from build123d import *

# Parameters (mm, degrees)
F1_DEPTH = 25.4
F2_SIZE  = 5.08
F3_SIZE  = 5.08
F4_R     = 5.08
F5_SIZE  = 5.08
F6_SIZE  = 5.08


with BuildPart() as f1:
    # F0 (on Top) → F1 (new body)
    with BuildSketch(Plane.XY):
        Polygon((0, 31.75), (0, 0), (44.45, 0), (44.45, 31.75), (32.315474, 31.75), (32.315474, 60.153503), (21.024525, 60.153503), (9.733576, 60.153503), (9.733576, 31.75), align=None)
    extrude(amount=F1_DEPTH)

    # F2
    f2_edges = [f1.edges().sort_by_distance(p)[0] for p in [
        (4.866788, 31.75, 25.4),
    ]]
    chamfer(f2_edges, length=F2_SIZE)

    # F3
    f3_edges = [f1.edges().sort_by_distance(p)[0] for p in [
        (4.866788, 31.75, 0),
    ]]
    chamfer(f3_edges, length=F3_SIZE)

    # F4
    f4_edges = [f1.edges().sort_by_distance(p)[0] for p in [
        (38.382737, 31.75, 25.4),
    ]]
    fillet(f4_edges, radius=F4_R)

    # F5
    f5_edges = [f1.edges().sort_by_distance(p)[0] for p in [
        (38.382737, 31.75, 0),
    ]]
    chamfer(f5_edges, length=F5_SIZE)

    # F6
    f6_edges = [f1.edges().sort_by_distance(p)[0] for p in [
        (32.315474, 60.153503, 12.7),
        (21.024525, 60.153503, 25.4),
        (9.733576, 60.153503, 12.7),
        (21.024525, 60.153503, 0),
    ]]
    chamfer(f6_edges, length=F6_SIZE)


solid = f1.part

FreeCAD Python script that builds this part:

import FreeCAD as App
import Part
import Sketcher
Q = App.Units.Quantity


def edges_at(feature, points):
    """Names of the edges that pass closest to the given points."""
    edges = feature.Shape.Edges
    near = lambda p: min(range(len(edges)), key=lambda i: edges[i].distToShape(Part.Vertex(*p))[0])
    return sorted({f"Edge{near(p) + 1}" for p in points})


def add_polygon(sketch, points):
    """Adds a closed chain of lines whose ends are joined by coincident constraints."""
    first, n = sketch.GeometryCount, len(points)
    for a, b in zip(points, points[1:] + points[:1]):
        sketch.addGeometry(Part.LineSegment(App.Vector(*a, 0), App.Vector(*b, 0)), False)
    for i in range(n):
        sketch.addConstraint(Sketcher.Constraint("Coincident", first + i, 2, first + (i + 1) % n, 1))

doc = App.newDocument("Part")
body = doc.addObject("PartDesign::Body", "Body")

sketch1 = doc.addObject("Sketcher::SketchObject", "Sketch")
body.addObject(sketch1)
sketch1.AttachmentSupport = (doc.XY_Plane, [""])
sketch1.MapMode = "FlatFace"
add_polygon(sketch1, [(0, 32), (0, 0), (44, 0), (44, 32), (32, 32), (32, 60), (10, 60), (10, 32)])
sketch1.addConstraint([
    Sketcher.Constraint("Vertical", 0),
    Sketcher.Constraint("Horizontal", 1),
    Sketcher.Constraint("Vertical", 2),
    Sketcher.Constraint("Horizontal", 3),
    Sketcher.Constraint("Vertical", 4),
    Sketcher.Constraint("Horizontal", 5),
    Sketcher.Constraint("Vertical", 6),
    Sketcher.Constraint("Horizontal", 7),
    Sketcher.Constraint("Coincident", 0, 2, -1, 1),
    Sketcher.Constraint("Horizontal", 3, 2, 6, 2),
    Sketcher.Constraint("DistanceX", 1, 1, 1, 2, Q("1.75 in")),
    Sketcher.Constraint("DistanceY", 0, 2, 0, 1, Q("1.25 in")),
    Sketcher.Constraint("DistanceX", 5, 2, 5, 1, 22.581898),
    Sketcher.Constraint("DistanceX", 3, 2, 3, 1, 12.134526),
    Sketcher.Constraint("DistanceY", 4, 1, 4, 2, 28.403503),
])
pad1 = doc.addObject("PartDesign::Pad", "Pad")
body.addObject(pad1)
pad1.Profile = sketch1
pad1.Length = Q("1 in")
doc.recompute()

chamfer = doc.addObject("PartDesign::Chamfer", "Chamfer")
body.addObject(chamfer)
chamfer.Base = (pad1, edges_at(pad1, [(4.867, 31.75, 25.4)]))
chamfer.Size = Q("0.2 in")
doc.recompute()

chamfer2 = doc.addObject("PartDesign::Chamfer", "Chamfer001")
body.addObject(chamfer2)
chamfer2.Base = (chamfer, edges_at(chamfer, [(4.867, 31.75, 0)]))
chamfer2.Size = Q("0.2 in")
doc.recompute()

fillet = doc.addObject("PartDesign::Fillet", "Fillet")
body.addObject(fillet)
fillet.Base = (chamfer2, edges_at(chamfer2, [(38.383, 31.75, 25.4)]))
fillet.Radius = Q("0.2 in")
doc.recompute()

chamfer3 = doc.addObject("PartDesign::Chamfer", "Chamfer002")
body.addObject(chamfer3)
chamfer3.Base = (fillet, edges_at(fillet, [(38.383, 31.75, 0)]))
chamfer3.Size = Q("0.2 in")
doc.recompute()

chamfer4 = doc.addObject("PartDesign::Chamfer", "Chamfer003")
body.addObject(chamfer4)
chamfer4.Base = (chamfer3, edges_at(chamfer3, [
    (32.315, 60.154, 12.7),
    (21.025, 60.154, 25.4),
    (9.734, 60.154, 12.7),
    (21.025, 60.154, 0),
]))
chamfer4.Size = Q("0.2 in")

doc.recompute()
